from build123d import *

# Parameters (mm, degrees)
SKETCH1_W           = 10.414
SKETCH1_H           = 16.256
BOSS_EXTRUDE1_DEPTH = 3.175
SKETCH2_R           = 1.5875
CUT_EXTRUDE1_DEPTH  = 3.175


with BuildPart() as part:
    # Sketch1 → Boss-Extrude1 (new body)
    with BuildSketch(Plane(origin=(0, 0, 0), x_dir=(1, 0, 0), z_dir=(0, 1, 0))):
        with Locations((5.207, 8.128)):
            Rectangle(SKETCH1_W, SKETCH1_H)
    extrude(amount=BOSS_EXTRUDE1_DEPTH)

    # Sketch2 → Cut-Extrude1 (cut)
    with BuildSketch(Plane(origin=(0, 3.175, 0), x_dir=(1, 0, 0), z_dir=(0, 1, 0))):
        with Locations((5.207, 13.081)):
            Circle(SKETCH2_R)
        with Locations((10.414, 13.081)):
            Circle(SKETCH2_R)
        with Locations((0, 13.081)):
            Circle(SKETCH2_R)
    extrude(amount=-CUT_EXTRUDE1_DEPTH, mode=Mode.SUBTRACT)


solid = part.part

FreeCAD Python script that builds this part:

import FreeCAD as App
import Part
import Sketcher

V = App.Vector
Q = App.Units.Quantity


def add_polygon(sketch, points):
    """Adds a closed chain of lines whose ends are joined by coincident constraints."""
    first, n = sketch.GeometryCount, len(points)
    for a, b in zip(points, points[1:] + points[:1]):
        sketch.addGeometry(Part.LineSegment(App.Vector(*a, 0), App.Vector(*b, 0)), False)
    for i in range(n):
        sketch.addConstraint(Sketcher.Constraint("Coincident", first + i, 2, first + (i + 1) % n, 1))

doc = App.newDocument("Part")
body = doc.addObject("PartDesign::Body", "Body")

# Sketch on XZ plane
sketch1 = body.newObject("Sketcher::SketchObject", "Sketch")
sketch1.AttachmentSupport = (doc.getObject("XZ_Plane"), [""])
sketch1.MapMode = "FlatFace"
add_polygon(sketch1, [(0, -16.256), (0, 0), (10.414, 0), (10.414, -16.256)])  # lines 0-3
sketch1.addConstraint([
    Sketcher.Constraint("Vertical", 0),
    Sketcher.Constraint("Horizontal", 1),
    Sketcher.Constraint("Vertical", 2),
    Sketcher.Constraint("Horizontal", 3),
    Sketcher.Constraint("Coincident", 0, 2, -1, 1),
    Sketcher.Constraint("DistanceX", 1, 1, 1, 2, Q("0.41 in")),
    Sketcher.Constraint("DistanceY", 0, 1, 0, 2, Q("0.64 in")),
])
pad1 = body.newObject("PartDesign::Pad", "Pad")
pad1.Profile = sketch1
pad1.Length = Q("0.125 in")
pad1.Reversed = True

# Sketch on XZ plane
sketch2 = body.newObject("Sketcher::SketchObject", "Sketch001")
sketch2.AttachmentSupport = (doc.getObject("XZ_Plane"), [""])
sketch2.MapMode = "FlatFace"
sketch2.AttachmentOffset = App.Placement(V(0, 0, -0.125 * 25.4), App.Rotation())
sketch2.addGeometry([
    Part.Circle(V(5.207, -13.081, 0), V(0, 0, 1), 1.5875),
    Part.Circle(V(10.414, -13.081, 0), V(0, 0, 1), 1.5875),
    Part.Circle(V(0, -13.081, 0), V(0, 0, 1), 1.5875),
], False)
sketch2.addConstraint([
    Sketcher.Constraint("Equal", 0, 1),
    Sketcher.Constraint("Equal", 1, 2),
    Sketcher.Constraint("PointOnObject", 2, 3, -2),
    Sketcher.Constraint("Horizontal", 0, 3, 1, 3),
    Sketcher.Constraint("Horizontal", 1, 3, 2, 3),
    Sketcher.Constraint("Diameter", 0, Q("0.125 in")),
    Sketcher.Constraint("DistanceX", -1, 1, 1, 3, Q("0.41 in")),
    Sketcher.Constraint("DistanceX", -1, 1, 0, 3, Q("0.205 in")),
    Sketcher.Constraint("DistanceY", 0, 3, -1, 1, Q("0.515 in")),
])
pocket1 = body.newObject("PartDesign::Pocket", "Pocket")
pocket1.Profile = sketch2
pocket1.Length = Q("0.125 in")
pocket1.Reversed = True

doc.recompute()
